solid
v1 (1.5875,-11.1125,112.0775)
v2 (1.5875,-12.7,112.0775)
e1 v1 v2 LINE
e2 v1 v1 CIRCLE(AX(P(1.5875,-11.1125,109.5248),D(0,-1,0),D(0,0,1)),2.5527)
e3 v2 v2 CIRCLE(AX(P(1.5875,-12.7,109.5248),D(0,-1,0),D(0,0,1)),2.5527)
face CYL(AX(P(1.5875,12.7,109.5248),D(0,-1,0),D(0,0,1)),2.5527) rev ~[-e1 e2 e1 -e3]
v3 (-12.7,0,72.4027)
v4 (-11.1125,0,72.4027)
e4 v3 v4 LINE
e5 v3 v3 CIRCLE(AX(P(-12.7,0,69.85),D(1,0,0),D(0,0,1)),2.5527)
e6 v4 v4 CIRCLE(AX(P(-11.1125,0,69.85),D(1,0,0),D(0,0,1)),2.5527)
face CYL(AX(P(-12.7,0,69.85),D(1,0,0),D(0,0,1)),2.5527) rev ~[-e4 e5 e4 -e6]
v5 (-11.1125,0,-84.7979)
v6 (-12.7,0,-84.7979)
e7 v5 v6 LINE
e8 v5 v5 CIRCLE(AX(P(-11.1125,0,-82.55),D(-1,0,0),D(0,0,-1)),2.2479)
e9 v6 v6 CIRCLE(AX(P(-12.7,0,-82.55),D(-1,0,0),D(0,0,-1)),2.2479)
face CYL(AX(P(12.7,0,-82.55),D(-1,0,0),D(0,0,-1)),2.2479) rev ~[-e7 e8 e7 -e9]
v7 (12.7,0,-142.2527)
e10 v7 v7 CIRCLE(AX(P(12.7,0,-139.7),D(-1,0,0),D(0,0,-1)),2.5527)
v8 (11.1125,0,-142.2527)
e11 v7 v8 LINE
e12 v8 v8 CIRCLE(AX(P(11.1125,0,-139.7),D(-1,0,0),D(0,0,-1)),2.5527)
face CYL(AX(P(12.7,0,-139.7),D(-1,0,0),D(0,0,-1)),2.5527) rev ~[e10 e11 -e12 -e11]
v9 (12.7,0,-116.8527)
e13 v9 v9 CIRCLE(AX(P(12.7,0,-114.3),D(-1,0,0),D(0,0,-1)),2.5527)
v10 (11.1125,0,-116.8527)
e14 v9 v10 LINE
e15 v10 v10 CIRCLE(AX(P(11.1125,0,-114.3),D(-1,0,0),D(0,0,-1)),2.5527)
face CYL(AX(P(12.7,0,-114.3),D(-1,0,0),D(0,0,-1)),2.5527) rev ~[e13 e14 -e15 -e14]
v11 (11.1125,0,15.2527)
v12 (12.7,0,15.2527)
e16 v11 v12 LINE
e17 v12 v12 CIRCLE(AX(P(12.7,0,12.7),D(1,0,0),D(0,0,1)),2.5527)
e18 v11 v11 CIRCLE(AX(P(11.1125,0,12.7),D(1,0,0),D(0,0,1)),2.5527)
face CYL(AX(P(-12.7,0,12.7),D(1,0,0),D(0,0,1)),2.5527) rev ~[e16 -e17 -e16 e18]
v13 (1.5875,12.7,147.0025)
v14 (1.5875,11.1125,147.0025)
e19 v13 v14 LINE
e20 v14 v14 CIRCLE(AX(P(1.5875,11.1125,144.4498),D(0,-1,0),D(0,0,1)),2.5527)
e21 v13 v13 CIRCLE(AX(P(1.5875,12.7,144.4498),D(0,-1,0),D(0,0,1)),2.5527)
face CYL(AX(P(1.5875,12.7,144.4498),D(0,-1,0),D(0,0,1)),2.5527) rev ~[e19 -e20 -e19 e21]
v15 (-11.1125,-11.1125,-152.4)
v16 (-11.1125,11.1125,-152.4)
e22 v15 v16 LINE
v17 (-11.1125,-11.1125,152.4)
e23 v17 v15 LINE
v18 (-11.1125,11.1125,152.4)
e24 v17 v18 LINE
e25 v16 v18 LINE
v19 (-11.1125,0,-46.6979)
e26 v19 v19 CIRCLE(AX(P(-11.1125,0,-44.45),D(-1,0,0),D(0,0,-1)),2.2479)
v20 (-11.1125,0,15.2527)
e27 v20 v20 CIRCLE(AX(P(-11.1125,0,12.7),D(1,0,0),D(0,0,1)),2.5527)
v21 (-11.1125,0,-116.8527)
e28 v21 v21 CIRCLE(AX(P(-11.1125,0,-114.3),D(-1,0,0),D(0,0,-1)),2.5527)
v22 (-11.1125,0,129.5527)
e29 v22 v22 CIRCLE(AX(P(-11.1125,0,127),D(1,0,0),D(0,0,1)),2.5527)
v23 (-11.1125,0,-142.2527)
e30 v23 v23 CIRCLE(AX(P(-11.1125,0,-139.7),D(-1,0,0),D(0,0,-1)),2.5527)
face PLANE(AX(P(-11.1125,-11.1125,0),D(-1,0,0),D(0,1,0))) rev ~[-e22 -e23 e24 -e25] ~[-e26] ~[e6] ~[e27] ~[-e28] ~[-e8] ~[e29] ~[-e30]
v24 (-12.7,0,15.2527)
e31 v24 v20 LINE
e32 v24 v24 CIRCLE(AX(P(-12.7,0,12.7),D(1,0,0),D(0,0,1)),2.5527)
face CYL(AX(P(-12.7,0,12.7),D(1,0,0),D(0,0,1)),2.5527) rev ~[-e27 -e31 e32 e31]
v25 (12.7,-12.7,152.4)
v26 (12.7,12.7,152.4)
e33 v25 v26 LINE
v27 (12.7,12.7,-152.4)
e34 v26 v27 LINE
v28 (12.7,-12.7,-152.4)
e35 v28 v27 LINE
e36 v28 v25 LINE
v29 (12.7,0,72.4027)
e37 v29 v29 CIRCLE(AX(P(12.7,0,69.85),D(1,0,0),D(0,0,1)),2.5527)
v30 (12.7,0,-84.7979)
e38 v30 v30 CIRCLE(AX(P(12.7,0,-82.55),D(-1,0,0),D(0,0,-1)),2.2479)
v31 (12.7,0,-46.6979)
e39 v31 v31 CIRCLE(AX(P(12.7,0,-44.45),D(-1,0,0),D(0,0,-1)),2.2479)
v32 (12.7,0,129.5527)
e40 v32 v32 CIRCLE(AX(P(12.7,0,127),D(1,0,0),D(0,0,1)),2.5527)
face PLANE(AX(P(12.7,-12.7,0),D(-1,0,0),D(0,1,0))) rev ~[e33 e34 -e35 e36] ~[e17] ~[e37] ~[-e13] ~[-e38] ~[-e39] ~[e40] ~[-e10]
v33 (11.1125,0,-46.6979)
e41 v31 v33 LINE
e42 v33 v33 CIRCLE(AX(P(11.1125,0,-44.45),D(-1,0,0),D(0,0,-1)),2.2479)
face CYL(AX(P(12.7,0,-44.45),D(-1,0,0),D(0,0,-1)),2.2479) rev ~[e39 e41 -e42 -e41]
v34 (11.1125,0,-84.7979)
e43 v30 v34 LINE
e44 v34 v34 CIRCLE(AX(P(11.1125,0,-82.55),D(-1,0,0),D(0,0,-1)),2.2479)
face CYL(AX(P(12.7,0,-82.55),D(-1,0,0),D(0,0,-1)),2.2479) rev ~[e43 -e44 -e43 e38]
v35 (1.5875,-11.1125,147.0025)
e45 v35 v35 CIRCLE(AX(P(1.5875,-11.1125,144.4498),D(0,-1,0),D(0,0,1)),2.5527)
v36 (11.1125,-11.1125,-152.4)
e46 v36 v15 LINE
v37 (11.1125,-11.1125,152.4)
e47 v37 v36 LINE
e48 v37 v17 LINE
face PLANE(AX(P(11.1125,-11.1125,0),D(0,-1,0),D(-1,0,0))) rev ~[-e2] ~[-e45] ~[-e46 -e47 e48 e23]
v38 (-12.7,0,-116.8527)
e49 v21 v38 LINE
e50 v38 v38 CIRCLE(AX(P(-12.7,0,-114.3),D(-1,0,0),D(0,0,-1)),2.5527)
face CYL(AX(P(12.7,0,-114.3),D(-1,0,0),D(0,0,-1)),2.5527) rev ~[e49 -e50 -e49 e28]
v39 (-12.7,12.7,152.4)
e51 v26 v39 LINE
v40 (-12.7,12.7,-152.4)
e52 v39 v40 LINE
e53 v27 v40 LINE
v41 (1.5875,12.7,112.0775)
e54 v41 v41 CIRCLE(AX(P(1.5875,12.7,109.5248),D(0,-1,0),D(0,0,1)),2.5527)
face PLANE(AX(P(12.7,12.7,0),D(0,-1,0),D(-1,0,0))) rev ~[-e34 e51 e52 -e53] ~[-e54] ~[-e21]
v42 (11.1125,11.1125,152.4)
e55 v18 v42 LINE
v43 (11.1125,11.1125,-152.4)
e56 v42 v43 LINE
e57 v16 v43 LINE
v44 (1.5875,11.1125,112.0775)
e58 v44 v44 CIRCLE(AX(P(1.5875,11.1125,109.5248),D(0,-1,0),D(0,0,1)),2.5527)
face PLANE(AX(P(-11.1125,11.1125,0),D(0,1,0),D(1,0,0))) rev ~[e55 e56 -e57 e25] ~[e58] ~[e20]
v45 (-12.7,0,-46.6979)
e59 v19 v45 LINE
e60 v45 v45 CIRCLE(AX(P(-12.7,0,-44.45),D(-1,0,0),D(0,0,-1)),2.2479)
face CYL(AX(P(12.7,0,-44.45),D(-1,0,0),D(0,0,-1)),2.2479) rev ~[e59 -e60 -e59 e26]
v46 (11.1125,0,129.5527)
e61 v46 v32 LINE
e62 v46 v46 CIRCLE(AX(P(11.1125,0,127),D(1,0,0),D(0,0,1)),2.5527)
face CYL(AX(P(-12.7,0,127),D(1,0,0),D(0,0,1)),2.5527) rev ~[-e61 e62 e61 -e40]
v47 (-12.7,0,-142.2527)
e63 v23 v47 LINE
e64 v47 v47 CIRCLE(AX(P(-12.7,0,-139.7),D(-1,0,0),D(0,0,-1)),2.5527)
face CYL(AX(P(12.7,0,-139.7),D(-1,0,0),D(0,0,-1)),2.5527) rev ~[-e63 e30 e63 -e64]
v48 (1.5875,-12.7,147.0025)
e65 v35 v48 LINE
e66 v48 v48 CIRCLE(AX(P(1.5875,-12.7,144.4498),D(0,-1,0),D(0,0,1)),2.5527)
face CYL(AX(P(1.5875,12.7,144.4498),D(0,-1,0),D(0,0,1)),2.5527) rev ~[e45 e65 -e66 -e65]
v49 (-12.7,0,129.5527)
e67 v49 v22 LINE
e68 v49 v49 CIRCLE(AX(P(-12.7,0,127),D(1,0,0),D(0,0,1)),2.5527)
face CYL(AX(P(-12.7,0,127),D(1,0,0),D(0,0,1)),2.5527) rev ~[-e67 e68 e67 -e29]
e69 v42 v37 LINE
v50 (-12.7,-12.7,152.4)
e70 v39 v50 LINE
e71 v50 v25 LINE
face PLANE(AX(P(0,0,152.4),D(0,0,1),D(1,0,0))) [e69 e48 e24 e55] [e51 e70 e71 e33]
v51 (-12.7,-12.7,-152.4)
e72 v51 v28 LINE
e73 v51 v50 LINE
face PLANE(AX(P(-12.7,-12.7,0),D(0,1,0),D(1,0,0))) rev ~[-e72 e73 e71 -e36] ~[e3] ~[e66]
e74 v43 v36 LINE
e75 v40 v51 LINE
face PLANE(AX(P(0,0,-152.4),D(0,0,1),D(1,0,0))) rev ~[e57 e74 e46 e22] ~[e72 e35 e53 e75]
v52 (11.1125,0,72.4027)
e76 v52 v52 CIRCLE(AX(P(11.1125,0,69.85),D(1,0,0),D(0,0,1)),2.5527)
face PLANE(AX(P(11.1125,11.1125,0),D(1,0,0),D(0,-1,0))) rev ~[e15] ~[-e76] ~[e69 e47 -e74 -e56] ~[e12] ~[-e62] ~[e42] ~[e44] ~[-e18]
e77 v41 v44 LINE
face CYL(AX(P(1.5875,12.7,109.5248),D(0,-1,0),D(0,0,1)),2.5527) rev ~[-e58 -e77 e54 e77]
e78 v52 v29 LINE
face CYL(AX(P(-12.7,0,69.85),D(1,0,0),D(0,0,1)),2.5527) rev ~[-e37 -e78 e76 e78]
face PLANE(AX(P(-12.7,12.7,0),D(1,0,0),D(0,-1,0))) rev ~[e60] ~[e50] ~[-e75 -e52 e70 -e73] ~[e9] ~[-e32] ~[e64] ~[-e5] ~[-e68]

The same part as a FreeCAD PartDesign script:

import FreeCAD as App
import Part
import Sketcher
Q = App.Units.Quantity

doc = App.newDocument("Part")
body = doc.addObject("PartDesign::Body", "Body")

sketch1 = body.newObject("Sketcher::SketchObject", "Sketch")
sketch1.AttachmentSupport = (doc.getObject("XY_Plane"), [""])
sketch1.MapMode = "FlatFace"
sketch1.addGeometry(Part.LineSegment(App.Vector(-13, 13, 0), App.Vector(-13, -13, 0)), False)
sketch1.addGeometry(Part.LineSegment(App.Vector(-13, -13, 0), App.Vector(13, -13, 0)), False)
sketch1.addGeometry(Part.LineSegment(App.Vector(13, -13, 0), App.Vector(13, 13, 0)), False)
sketch1.addGeometry(Part.LineSegment(App.Vector(13, 13, 0), App.Vector(-13, 13, 0)), False)
sketch1.addGeometry(Part.LineSegment(App.Vector(-11, -11, 0), App.Vector(-11, 11, 0)), False)
sketch1.addGeometry(Part.LineSegment(App.Vector(-11, 11, 0), App.Vector(11, 11, 0)), False)
sketch1.addGeometry(Part.LineSegment(App.Vector(11, 11, 0), App.Vector(11, -11, 0)), False)
sketch1.addGeometry(Part.LineSegment(App.Vector(11, -11, 0), App.Vector(-11, -11, 0)), False)
sketch1.addConstraint(Sketcher.Constraint("Coincident", 0, 2, 1, 1))
sketch1.addConstraint(Sketcher.Constraint("Coincident", 1, 2, 2, 1))
sketch1.addConstraint(Sketcher.Constraint("Coincident", 2, 2, 3, 1))
sketch1.addConstraint(Sketcher.Constraint("Coincident", 3, 2, 0, 1))
sketch1.addConstraint(Sketcher.Constraint("Coincident", 4, 2, 5, 1))
sketch1.addConstraint(Sketcher.Constraint("Coincident", 5, 2, 6, 1))
sketch1.addConstraint(Sketcher.Constraint("Coincident", 6, 2, 7, 1))
sketch1.addConstraint(Sketcher.Constraint("Coincident", 7, 2, 4, 1))
sketch1.addConstraint(Sketcher.Constraint("Vertical", 0))
sketch1.addConstraint(Sketcher.Constraint("Horizontal", 1))
sketch1.addConstraint(Sketcher.Constraint("Vertical", 2))
sketch1.addConstraint(Sketcher.Constraint("Horizontal", 3))
sketch1.addConstraint(Sketcher.Constraint("Vertical", 4))
sketch1.addConstraint(Sketcher.Constraint("Horizontal", 5))
sketch1.addConstraint(Sketcher.Constraint("Vertical", 6))
sketch1.addConstraint(Sketcher.Constraint("Horizontal", 7))
sketch1.addConstraint(Sketcher.Constraint("Symmetric", 0, 2, 2, 2, -1, 1))
sketch1.addConstraint(Sketcher.Constraint("Symmetric", 4, 2, 6, 2, -1, 1))
sketch1.addConstraint(Sketcher.Constraint("Equal", 3, 0))
sketch1.addConstraint(Sketcher.Constraint("Equal", 7, 4))
sketch1.addConstraint(Sketcher.Constraint("DistanceX", 1, 1, 1, 2, Q("1 in")))
sketch1.addConstraint(Sketcher.Constraint("DistanceX", 3, 2, 4, 2, Q("0.0625 in")))
pad1 = body.newObject("PartDesign::Pad", "Pad")
pad1.Profile = sketch1
pad1.Length = Q("12 in")
pad1.Midplane = True

sketch2 = body.newObject("Sketcher::SketchObject", "Sketch001")
sketch2.AttachmentSupport = (doc.getObject("YZ_Plane"), [""])
sketch2.MapMode = "FlatFace"
sketch2.AttachmentOffset = App.Placement(App.Vector(0, 0, 0.5 * 25.4), App.Rotation())
sketch2.addGeometry(Part.Circle(App.Vector(0, -139.7, 0), App.Vector(0, 0, 1), 2.6), False)
sketch2.addGeometry(Part.Circle(App.Vector(0, -114.3, 0), App.Vector(0, 0, 1), 2.6), False)
sketch2.addConstraint(Sketcher.Constraint("Equal", 0, 1))
sketch2.addConstraint(Sketcher.Constraint("PointOnObject", 0, 3, -2))
sketch2.addConstraint(Sketcher.Constraint("PointOnObject", 1, 3, -2))
sketch2.addConstraint(Sketcher.Constraint("Diameter", 0, Q("0.201 in")))
sketch2.addConstraint(Sketcher.Constraint("DistanceY", 0, 3, 1, 3, Q("1 in")))
sketch2.addConstraint(Sketcher.Constraint("DistanceY", 0, 3, -1, 1, Q("5.5 in")))
doc.recompute()
hole = body.newObject("PartDesign::Hole", "Hole")
hole.Profile = sketch2
hole.ThreadType = "None"
hole.Diameter = Q("0.201 in")
hole.DepthType = "ThroughAll"

sketch3 = body.newObject("Sketcher::SketchObject", "Sketch002")
sketch3.AttachmentSupport = (doc.getObject("XZ_Plane"), [""])
sketch3.MapMode = "FlatFace"
sketch3.AttachmentOffset = App.Placement(App.Vector(0, 0, -0.5 * 25.4), App.Rotation())
sketch3.addGeometry(Part.Circle(App.Vector(1.6, 144.4, 0), App.Vector(0, 0, 1), 2.6), False)
sketch3.addGeometry(Part.Circle(App.Vector(1.6, 109.5, 0), App.Vector(0, 0, 1), 2.6), False)
sketch3.addConstraint(Sketcher.Constraint("Equal", 0, 1))
sketch3.addConstraint(Sketcher.Constraint("Vertical", 0, 3, 1, 3))
sketch3.addConstraint(Sketcher.Constraint("Diameter", 0, Q("0.201 in")))
sketch3.addConstraint(Sketcher.Constraint("DistanceX", -1, 1, 0, 3, Q("0.0625 in")))
sketch3.addConstraint(Sketcher.Constraint("DistanceY", -1, 1, 0, 3, Q("5.687 in")))
sketch3.addConstraint(Sketcher.Constraint("DistanceY", -1, 1, 1, 3, Q("4.312 in")))
doc.recompute()
hole2 = body.newObject("PartDesign::Hole", "Hole001")
hole2.Profile = sketch3
hole2.ThreadType = "None"
hole2.Diameter = Q("0.201 in")
hole2.DepthType = "ThroughAll"
hole2.Reversed = True

sketch4 = body.newObject("Sketcher::SketchObject", "Sketch003")
sketch4.AttachmentSupport = (doc.getObject("YZ_Plane"), [""])
sketch4.MapMode = "FlatFace"
sketch4.AttachmentOffset = App.Placement(App.Vector(0, 0, -0.5 * 25.4), App.Rotation())
sketch4.addGeometry(Part.Circle(App.Vector(0, 127, 0), App.Vector(0, 0, 1), 2.6), False)
sketch4.addGeometry(Part.Circle(App.Vector(0, 69.8, 0), App.Vector(0, 0, 1), 2.6), False)
sketch4.addGeometry(Part.Circle(App.Vector(0, 12.7, 0), App.Vector(0, 0, 1), 2.6), False)
sketch4.addConstraint(Sketcher.Constraint("Equal", 0, 1))
sketch4.addConstraint(Sketcher.Constraint("Equal", 1, 2))
sketch4.addConstraint(Sketcher.Constraint("PointOnObject", 0, 3, -2))
sketch4.addConstraint(Sketcher.Constraint("PointOnObject", 1, 3, -2))
sketch4.addConstraint(Sketcher.Constraint("PointOnObject", 2, 3, -2))
sketch4.addConstraint(Sketcher.Constraint("Diameter", 0, Q("0.201 in")))
sketch4.addConstraint(Sketcher.Constraint("DistanceY", -1, 1, 0, 3, Q("5 in")))
sketch4.addConstraint(Sketcher.Constraint("DistanceY", -1, 1, 2, 3, Q("0.5 in")))
sketch4.addConstraint(Sketcher.Constraint("DistanceY", -1, 1, 1, 3, Q("2.75 in")))
doc.recompute()
hole3 = body.newObject("PartDesign::Hole", "Hole002")
hole3.Profile = sketch4
hole3.ThreadType = "None"
hole3.Diameter = Q("0.201 in")
hole3.DepthType = "ThroughAll"
hole3.Reversed = True

sketch5 = body.newObject("Sketcher::SketchObject", "Sketch004")
sketch5.AttachmentSupport = (doc.getObject("YZ_Plane"), [""])
sketch5.MapMode = "FlatFace"
sketch5.AttachmentOffset = App.Placement(App.Vector(0, 0, 0.5 * 25.4), App.Rotation())
sketch5.addGeometry(Part.Circle(App.Vector(0, -44.5, 0), App.Vector(0, 0, 1), 2.2), False)
sketch5.addGeometry(Part.Circle(App.Vector(0, -82.5, 0), App.Vector(0, 0, 1), 2.2), False)
sketch5.addConstraint(Sketcher.Constraint("Equal", 0, 1))
sketch5.addConstraint(Sketcher.Constraint("PointOnObject", 0, 3, -2))
sketch5.addConstraint(Sketcher.Constraint("PointOnObject", 1, 3, -2))
sketch5.addConstraint(Sketcher.Constraint("Diameter", 0, Q("0.177 in")))
sketch5.addConstraint(Sketcher.Constraint("DistanceY", 1, 3, 0, 3, Q("1.5 in")))
sketch5.addConstraint(Sketcher.Constraint("DistanceY", 0, 3, -1, 1, Q("1.75 in")))
doc.recompute()
hole4 = body.newObject("PartDesign::Hole", "Hole003")
hole4.Profile = sketch5
hole4.ThreadType = "None"
hole4.Diameter = Q("0.177 in")
hole4.DepthType = "ThroughAll"

doc.recompute()
